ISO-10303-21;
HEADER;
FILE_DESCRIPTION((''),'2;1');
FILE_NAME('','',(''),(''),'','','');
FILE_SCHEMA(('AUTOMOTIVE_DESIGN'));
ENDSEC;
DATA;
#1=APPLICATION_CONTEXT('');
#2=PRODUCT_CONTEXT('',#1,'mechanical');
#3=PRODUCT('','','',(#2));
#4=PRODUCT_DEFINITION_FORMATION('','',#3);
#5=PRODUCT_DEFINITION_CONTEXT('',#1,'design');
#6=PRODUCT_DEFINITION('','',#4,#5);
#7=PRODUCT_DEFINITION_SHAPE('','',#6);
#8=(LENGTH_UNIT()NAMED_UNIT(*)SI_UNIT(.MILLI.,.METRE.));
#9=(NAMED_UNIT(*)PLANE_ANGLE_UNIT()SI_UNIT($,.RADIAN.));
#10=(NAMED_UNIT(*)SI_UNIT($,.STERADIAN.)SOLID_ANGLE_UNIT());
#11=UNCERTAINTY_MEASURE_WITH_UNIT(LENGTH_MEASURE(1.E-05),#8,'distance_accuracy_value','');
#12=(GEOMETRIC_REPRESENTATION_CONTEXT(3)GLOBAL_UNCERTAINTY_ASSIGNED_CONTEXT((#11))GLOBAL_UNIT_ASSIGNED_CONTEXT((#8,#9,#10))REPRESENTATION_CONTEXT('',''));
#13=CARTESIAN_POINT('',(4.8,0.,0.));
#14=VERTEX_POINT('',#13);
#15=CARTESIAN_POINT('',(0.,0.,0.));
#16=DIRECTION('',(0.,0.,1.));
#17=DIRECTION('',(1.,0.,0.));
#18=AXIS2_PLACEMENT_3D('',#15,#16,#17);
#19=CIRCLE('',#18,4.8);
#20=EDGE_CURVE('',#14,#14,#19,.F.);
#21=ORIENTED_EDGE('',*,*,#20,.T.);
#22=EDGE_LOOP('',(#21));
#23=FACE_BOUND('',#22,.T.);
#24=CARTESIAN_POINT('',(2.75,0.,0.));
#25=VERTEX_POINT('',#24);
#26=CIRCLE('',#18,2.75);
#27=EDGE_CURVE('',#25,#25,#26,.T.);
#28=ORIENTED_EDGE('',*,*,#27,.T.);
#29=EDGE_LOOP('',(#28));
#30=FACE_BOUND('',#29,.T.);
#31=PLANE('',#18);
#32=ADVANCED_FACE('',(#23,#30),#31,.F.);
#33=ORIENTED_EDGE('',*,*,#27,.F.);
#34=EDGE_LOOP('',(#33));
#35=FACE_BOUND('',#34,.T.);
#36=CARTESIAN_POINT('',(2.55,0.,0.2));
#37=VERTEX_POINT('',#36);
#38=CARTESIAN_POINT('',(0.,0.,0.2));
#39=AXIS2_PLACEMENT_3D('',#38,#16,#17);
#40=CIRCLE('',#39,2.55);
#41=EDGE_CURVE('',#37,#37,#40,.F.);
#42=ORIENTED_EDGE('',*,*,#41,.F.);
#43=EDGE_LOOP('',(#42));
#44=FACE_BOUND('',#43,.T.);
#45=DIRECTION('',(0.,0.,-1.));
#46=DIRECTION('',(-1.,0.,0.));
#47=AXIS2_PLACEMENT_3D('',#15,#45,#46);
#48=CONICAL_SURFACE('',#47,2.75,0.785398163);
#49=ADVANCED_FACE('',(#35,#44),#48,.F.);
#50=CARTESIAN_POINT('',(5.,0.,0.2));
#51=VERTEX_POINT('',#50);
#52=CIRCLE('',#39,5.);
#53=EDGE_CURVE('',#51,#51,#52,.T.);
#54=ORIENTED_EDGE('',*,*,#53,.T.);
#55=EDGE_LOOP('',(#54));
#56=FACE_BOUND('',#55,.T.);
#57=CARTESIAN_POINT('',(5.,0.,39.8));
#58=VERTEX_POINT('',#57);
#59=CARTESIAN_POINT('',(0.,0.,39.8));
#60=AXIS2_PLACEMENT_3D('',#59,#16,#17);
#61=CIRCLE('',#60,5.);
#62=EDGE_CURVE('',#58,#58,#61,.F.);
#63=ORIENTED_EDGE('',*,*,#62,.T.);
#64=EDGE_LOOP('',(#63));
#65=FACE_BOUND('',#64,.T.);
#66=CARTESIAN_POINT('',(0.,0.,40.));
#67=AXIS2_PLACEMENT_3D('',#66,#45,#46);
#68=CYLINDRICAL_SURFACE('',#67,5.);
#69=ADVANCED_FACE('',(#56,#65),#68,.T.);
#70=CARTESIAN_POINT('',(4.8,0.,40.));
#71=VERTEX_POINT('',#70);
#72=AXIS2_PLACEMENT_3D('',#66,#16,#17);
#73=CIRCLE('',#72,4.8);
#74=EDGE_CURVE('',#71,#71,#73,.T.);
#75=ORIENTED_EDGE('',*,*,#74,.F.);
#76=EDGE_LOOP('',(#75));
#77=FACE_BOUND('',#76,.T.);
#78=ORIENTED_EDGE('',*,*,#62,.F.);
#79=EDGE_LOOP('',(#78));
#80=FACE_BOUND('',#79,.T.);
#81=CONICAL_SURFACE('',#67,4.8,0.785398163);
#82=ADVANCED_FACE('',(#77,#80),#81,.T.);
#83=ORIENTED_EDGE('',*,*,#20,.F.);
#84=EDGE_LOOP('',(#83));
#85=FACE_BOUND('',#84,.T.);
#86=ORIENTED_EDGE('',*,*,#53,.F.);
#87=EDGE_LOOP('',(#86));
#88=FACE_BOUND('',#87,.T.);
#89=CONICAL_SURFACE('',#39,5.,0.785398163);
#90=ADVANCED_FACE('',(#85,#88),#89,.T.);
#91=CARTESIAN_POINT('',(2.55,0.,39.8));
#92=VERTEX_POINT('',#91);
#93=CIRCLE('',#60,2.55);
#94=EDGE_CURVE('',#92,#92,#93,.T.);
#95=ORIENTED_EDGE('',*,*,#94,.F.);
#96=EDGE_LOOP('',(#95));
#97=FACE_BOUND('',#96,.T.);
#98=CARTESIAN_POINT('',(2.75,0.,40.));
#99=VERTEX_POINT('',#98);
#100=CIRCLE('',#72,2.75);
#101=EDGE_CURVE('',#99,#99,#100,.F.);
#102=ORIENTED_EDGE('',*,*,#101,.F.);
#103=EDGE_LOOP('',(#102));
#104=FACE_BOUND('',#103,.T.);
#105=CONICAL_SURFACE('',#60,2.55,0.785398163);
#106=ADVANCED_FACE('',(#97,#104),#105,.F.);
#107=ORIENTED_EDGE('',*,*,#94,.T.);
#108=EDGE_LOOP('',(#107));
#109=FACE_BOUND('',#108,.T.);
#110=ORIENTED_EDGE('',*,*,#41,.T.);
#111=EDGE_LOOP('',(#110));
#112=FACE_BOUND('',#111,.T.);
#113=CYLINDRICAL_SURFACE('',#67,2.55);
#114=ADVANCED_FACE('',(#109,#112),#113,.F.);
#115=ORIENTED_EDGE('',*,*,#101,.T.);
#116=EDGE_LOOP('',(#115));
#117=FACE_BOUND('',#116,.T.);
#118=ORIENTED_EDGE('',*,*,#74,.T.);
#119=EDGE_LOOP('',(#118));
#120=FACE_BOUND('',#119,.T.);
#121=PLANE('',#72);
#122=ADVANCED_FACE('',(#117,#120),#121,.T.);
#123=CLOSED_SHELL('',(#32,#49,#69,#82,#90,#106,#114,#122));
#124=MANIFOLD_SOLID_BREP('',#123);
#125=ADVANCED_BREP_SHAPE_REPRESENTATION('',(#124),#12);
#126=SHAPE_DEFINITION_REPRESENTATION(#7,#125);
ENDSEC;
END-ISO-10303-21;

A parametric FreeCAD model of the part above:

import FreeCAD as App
import Part
import Sketcher
from FreeCAD import Vector


def edges_at(feature, points):
    """Names of the edges that pass closest to the given points."""
    edges = feature.Shape.Edges
    near = lambda p: min(range(len(edges)), key=lambda i: edges[i].distToShape(Part.Vertex(*p))[0])
    return sorted({f"Edge{near(p) + 1}" for p in points})

doc = App.newDocument("Part")
body = doc.addObject("PartDesign::Body", "Body")

# Sketch on XY plane
sketch1 = body.newObject("Sketcher::SketchObject", "Sketch")
sketch1.AttachmentSupport = (doc.getObject("XY_Plane"), [""])
sketch1.MapMode = "FlatFace"
sketch1.addGeometry(Part.Circle(Vector(0, 0, 0), Vector(0, 0, 1), 5), False)
sketch1.addGeometry(Part.Circle(Vector(0, 0, 0), Vector(0, 0, 1), 2.55), False)
sketch1.addConstraint(Sketcher.Constraint("Coincident", 0, 3, -1, 1))
sketch1.addConstraint(Sketcher.Constraint("Coincident", 1, 3, -1, 1))
sketch1.addConstraint(Sketcher.Constraint("Diameter", 0, 10.0))
sketch1.addConstraint(Sketcher.Constraint("Diameter", 1, 5.1))
pad1 = body.newObject("PartDesign::Pad", "Pad")
pad1.Profile = sketch1
pad1.Length = 40
doc.recompute()

chamfer = body.newObject("PartDesign::Chamfer", "Chamfer")
chamfer.Base = (pad1, edges_at(pad1, [
    (-5, 0, 0),
    (-5, 0, 40),
    (-2.55, 0, 0),
    (-2.55, 0, 40),
]))
chamfer.Size = 0.2

doc.recompute()
